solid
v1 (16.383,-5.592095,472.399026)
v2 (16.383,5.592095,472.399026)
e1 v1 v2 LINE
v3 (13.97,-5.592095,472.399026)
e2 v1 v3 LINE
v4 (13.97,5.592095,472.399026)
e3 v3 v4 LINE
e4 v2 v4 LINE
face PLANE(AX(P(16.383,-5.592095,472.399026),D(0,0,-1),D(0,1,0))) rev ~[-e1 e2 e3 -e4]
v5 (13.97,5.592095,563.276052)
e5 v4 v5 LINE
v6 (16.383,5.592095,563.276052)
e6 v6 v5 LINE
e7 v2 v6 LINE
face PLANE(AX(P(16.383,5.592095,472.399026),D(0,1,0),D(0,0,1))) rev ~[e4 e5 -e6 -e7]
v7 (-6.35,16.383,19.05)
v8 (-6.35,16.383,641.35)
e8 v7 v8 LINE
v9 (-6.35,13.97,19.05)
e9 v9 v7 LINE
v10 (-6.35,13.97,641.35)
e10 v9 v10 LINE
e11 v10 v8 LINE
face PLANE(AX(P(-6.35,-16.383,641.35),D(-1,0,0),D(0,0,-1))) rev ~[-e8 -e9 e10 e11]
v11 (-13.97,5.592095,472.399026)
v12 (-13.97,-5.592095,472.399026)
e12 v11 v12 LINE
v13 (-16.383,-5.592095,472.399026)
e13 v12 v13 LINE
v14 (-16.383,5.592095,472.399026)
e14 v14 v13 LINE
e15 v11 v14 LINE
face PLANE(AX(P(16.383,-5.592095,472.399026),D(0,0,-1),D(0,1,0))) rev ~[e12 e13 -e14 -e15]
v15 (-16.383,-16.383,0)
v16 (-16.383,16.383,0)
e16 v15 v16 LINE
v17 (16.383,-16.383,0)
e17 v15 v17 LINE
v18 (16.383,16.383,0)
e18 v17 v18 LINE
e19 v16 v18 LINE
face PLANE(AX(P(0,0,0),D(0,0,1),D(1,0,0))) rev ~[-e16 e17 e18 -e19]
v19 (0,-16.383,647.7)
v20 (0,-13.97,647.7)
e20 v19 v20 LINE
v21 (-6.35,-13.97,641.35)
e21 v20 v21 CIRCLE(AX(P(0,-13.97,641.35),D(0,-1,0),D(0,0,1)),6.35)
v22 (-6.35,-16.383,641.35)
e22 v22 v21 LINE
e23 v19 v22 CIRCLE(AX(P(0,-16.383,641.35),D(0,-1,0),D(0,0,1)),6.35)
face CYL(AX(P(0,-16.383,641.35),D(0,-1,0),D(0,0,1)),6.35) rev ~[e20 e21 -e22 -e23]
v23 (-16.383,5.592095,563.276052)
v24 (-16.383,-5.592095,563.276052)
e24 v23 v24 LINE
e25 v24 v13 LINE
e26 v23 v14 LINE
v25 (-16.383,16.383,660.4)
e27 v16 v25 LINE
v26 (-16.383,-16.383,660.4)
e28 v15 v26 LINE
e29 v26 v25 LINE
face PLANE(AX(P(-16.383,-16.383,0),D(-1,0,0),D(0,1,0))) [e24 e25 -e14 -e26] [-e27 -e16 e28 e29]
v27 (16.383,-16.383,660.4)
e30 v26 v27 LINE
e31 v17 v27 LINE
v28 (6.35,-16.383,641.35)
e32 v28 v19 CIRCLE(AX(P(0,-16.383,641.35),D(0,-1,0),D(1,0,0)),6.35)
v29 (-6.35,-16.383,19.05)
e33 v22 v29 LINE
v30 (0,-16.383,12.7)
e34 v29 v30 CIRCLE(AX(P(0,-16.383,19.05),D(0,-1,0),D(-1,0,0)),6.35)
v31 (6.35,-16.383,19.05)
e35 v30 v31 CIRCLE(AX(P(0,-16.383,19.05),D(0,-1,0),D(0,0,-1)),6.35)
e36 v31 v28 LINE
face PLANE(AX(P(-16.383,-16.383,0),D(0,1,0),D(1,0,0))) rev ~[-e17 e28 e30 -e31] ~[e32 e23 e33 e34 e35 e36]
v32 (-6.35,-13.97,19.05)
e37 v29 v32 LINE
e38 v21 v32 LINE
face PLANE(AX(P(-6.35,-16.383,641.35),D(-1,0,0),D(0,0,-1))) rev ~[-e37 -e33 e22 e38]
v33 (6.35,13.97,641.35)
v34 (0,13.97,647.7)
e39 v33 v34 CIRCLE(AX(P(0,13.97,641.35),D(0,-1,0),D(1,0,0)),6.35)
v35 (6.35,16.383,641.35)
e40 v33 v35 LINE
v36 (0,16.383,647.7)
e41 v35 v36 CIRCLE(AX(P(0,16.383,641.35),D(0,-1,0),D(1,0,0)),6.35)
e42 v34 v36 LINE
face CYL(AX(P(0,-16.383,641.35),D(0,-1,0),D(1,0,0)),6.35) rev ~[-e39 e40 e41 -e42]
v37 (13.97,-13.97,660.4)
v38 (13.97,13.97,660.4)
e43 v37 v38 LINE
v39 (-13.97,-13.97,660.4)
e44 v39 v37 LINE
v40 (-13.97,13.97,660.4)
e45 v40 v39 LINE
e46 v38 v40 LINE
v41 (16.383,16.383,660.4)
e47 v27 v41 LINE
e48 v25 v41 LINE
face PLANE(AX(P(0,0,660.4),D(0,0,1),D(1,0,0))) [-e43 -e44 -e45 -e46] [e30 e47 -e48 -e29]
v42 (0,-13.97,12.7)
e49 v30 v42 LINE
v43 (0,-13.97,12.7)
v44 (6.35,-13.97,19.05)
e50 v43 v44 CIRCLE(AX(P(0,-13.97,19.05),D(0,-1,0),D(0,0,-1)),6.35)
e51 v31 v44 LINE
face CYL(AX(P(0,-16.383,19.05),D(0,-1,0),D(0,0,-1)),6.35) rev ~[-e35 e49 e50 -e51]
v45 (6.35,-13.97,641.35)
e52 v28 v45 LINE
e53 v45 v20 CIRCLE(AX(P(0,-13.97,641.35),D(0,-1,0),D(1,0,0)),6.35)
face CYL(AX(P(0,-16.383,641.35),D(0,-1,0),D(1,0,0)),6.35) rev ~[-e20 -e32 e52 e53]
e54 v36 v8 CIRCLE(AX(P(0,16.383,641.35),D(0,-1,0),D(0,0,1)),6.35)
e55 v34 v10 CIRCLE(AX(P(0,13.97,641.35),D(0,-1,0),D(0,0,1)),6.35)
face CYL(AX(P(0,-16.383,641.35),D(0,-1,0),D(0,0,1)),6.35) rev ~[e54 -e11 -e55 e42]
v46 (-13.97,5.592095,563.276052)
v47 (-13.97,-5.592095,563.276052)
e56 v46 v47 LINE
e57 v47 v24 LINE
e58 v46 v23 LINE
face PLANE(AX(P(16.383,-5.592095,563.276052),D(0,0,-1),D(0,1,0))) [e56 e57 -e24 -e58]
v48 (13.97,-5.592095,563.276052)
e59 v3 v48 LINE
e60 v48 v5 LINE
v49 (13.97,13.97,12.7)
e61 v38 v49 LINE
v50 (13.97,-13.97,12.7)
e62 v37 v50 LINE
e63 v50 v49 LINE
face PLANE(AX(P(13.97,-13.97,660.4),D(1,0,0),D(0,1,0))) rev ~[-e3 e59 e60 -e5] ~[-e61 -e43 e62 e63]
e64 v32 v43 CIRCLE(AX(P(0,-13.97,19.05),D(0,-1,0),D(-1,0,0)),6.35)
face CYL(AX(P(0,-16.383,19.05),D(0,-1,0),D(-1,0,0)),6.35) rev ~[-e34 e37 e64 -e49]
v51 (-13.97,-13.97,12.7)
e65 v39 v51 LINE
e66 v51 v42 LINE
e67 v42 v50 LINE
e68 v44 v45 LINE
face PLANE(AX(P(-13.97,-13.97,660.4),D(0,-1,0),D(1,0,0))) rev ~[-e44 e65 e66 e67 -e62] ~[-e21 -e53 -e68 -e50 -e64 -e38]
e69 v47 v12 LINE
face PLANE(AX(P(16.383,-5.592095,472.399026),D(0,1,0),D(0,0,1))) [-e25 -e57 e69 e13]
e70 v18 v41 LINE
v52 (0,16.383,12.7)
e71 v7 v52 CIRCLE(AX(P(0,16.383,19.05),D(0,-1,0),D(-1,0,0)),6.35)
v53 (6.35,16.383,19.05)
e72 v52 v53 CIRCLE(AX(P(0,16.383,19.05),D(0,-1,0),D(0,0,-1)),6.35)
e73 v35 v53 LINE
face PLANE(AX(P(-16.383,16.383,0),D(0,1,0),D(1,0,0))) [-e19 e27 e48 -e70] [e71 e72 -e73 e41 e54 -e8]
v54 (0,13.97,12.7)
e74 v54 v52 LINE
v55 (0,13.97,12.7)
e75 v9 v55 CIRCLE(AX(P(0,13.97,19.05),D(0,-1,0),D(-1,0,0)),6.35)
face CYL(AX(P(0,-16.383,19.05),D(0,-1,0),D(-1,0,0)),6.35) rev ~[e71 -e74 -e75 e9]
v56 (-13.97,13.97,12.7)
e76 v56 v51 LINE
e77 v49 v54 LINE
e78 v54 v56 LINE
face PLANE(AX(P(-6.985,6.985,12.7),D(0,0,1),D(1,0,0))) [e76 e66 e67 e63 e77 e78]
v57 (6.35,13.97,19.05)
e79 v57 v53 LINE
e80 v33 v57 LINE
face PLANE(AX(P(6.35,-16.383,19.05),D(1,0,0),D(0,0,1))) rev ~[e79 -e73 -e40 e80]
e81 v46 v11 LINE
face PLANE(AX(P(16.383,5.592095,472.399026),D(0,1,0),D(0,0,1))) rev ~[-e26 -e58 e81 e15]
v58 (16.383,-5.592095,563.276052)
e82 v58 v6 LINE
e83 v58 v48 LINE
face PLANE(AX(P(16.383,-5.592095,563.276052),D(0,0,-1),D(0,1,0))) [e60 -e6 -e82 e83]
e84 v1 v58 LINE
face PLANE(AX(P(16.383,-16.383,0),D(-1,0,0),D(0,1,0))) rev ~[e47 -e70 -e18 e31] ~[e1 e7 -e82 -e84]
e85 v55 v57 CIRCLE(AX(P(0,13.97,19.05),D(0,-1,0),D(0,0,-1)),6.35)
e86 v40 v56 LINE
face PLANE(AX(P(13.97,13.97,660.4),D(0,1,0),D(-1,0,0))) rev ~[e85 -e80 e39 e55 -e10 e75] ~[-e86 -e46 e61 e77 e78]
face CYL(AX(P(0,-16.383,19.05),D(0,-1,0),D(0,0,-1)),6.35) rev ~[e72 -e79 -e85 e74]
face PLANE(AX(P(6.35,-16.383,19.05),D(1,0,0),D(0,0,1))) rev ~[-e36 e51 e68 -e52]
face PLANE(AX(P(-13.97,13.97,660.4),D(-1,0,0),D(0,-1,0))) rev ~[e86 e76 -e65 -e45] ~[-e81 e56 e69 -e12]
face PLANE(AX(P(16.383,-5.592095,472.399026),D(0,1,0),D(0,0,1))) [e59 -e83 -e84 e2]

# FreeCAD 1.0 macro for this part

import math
import FreeCAD as App
import Part
import Sketcher
Q = App.Units.Quantity


def add_polygon(sketch, points):
    """Adds a closed chain of lines whose ends are joined by coincident constraints."""
    first, n = sketch.GeometryCount, len(points)
    for a, b in zip(points, points[1:] + points[:1]):
        sketch.addGeometry(Part.LineSegment(App.Vector(*a, 0), App.Vector(*b, 0)), False)
    for i in range(n):
        sketch.addConstraint(Sketcher.Constraint("Coincident", first + i, 2, first + (i + 1) % n, 1))

doc = App.newDocument("Part")
params = doc.addObject("Spreadsheet::Sheet", "Params")
for row, (alias, value) in enumerate([
    ("sketch1_width", "1.29 in"),
    ("pad1_length", "26 in"),
    ("sketch2_width", "1.1 in"),
    ("pocket1_length", "25.5 in"),
    ("sketch3_radius", "0.25 in"),
    ("sketch3_height", "24.5 in"),
    ("pocket2_length", "2.61 in"),
    ("pocket3_length", "3.79 in"),
], start=1):
    params.set(f"A{row}", alias)
    params.set(f"B{row}", "=" + value)
    params.setAlias(f"B{row}", alias)

body = doc.addObject("PartDesign::Body", "Body")

sketch1 = doc.addObject("Sketcher::SketchObject", "Sketch")
body.addObject(sketch1)
sketch1.AttachmentSupport = (doc.XY_Plane, [""])
sketch1.MapMode = "FlatFace"
add_polygon(sketch1, [(-16.383, 16.383), (-16.383, -16.383), (16.383, -16.383), (16.383, 16.383)])
sketch1.addConstraint([
    Sketcher.Constraint("Vertical", 0),
    Sketcher.Constraint("Horizontal", 1),
    Sketcher.Constraint("Vertical", 2),
    Sketcher.Constraint("Horizontal", 3),
    Sketcher.Constraint("Symmetric", 0, 2, 2, 2, -1, 1),
    Sketcher.Constraint("Equal", 3, 0),
    Sketcher.Constraint("DistanceX", 1, 1, 1, 2, Q("1.29 in")),
])
sketch1.setExpression("Constraints[10]", "Params.sketch1_width")
pad1 = doc.addObject("PartDesign::Pad", "Pad")
body.addObject(pad1)
pad1.Profile = sketch1
pad1.setExpression("Length", "Params.pad1_length")

sketch2 = doc.addObject("Sketcher::SketchObject", "Sketch001")
body.addObject(sketch2)
sketch2.AttachmentSupport = (doc.XY_Plane, [""])
sketch2.MapMode = "FlatFace"
sketch2.AttachmentOffset = App.Placement(App.Vector(0, 0, 26 * 25.4), App.Rotation())
add_polygon(sketch2, [(-13.97, 13.97), (-13.97, -13.97), (13.97, -13.97), (13.97, 13.97)])
sketch2.addConstraint([
    Sketcher.Constraint("Vertical", 0),
    Sketcher.Constraint("Horizontal", 1),
    Sketcher.Constraint("Vertical", 2),
    Sketcher.Constraint("Horizontal", 3),
    Sketcher.Constraint("Symmetric", 0, 2, 2, 2, -1, 1),
    Sketcher.Constraint("Equal", 3, 0),
    Sketcher.Constraint("DistanceX", 1, 1, 1, 2, Q("1.1 in")),
])
sketch2.setExpression("Constraints[10]", "Params.sketch2_width")
pocket1 = doc.addObject("PartDesign::Pocket", "Pocket")
body.addObject(pocket1)
pocket1.Profile = sketch2
pocket1.setExpression("Length", "Params.pocket1_length")

sketch3 = doc.addObject("Sketcher::SketchObject", "Sketch002")
body.addObject(sketch3)
sketch3.AttachmentSupport = (doc.XZ_Plane, [""])
sketch3.MapMode = "FlatFace"
sketch3.AttachmentOffset = App.Placement(App.Vector(0, 0, 0.645 * 25.4), App.Rotation())
sketch3.addGeometry([
    Part.ArcOfCircle(Part.Circle(App.Vector(0, 641.35, 0), App.Vector(0, 0, 1), 6.35), math.radians(0), math.radians(90)),
    Part.ArcOfCircle(Part.Circle(App.Vector(0, 641.35, 0), App.Vector(0, 0, 1), 6.35), math.radians(90), math.radians(180)),
    Part.LineSegment(App.Vector(-6.35, 641.35, 0), App.Vector(-6.35, 19.05, 0)),
    Part.ArcOfCircle(Part.Circle(App.Vector(0, 19.05, 0), App.Vector(0, 0, 1), 6.35), math.radians(180), math.radians(270)),
    Part.ArcOfCircle(Part.Circle(App.Vector(0, 19.05, 0), App.Vector(0, 0, 1), 6.35), math.radians(-90), math.radians(0)),
    Part.LineSegment(App.Vector(6.35, 19.05, 0), App.Vector(6.35, 641.35, 0)),
], False)
sketch3.addConstraint([
    Sketcher.Constraint("Tangent", 0, 2, 1, 1),
    Sketcher.Constraint("Tangent", 1, 2, 2, 1),
    Sketcher.Constraint("Tangent", 2, 2, 3, 1),
    Sketcher.Constraint("Tangent", 3, 2, 4, 1),
    Sketcher.Constraint("Tangent", 4, 2, 5, 1),
    Sketcher.Constraint("Tangent", 5, 2, 0, 1),
    Sketcher.Constraint("Vertical", 2),
    Sketcher.Constraint("Vertical", 5),
    Sketcher.Constraint("Equal", 0, 1),
    Sketcher.Constraint("Equal", 1, 3),
    Sketcher.Constraint("PointOnObject", 0, 3, -2),
    Sketcher.Constraint("PointOnObject", 0, 2, -2),
    Sketcher.Constraint("PointOnObject", 3, 2, -2),
    Sketcher.Constraint("Radius", 0, Q("0.25 in")),
    Sketcher.Constraint("DistanceY", 2, 2, 2, 1, Q("24.5 in")),
    Sketcher.Constraint("DistanceY", -1, 1, 0, 2, Q("25.5 in")),
])
sketch3.setExpression("Constraints[13]", "Params.sketch3_radius")
sketch3.setExpression("Constraints[14]", "Params.sketch3_height")
pocket2 = doc.addObject("PartDesign::Pocket", "Pocket001")
body.addObject(pocket2)
pocket2.Profile = sketch3
pocket2.setExpression("Length", "Params.pocket2_length")

sketch4 = doc.addObject("Sketcher::SketchObject", "Sketch003")
body.addObject(sketch4)
sketch4.AttachmentSupport = (doc.YZ_Plane, [""])
sketch4.MapMode = "FlatFace"
sketch4.AttachmentOffset = App.Placement(App.Vector(0, 0, 0.645 * 25.4), App.Rotation())
add_polygon(sketch4, [(-5.592095, 563.276052), (-5.592095, 472.399026), (5.592095, 472.399026), (5.592095, 563.276052)])
sketch4.addConstraint([
    Sketcher.Constraint("Vertical", 0),
    Sketcher.Constraint("Horizontal", 1),
    Sketcher.Constraint("Vertical", 2),
    Sketcher.Constraint("Horizontal", 3),
    Sketcher.Constraint("DistanceX", 1, 1, 1, 2, Q("11.18419 mm")),
    Sketcher.Constraint("DistanceY", 0, 2, 0, 1, Q("90.877026 mm")),
    Sketcher.Constraint("DistanceX", 0, 2, -1, 1, Q("5.592095 mm")),
    Sketcher.Constraint("DistanceY", -1, 1, 0, 2, Q("472.399026 mm")),
])
pocket3 = doc.addObject("PartDesign::Pocket", "Pocket002")
body.addObject(pocket3)
pocket3.Profile = sketch4
pocket3.setExpression("Length", "Params.pocket3_length")

doc.recompute()
